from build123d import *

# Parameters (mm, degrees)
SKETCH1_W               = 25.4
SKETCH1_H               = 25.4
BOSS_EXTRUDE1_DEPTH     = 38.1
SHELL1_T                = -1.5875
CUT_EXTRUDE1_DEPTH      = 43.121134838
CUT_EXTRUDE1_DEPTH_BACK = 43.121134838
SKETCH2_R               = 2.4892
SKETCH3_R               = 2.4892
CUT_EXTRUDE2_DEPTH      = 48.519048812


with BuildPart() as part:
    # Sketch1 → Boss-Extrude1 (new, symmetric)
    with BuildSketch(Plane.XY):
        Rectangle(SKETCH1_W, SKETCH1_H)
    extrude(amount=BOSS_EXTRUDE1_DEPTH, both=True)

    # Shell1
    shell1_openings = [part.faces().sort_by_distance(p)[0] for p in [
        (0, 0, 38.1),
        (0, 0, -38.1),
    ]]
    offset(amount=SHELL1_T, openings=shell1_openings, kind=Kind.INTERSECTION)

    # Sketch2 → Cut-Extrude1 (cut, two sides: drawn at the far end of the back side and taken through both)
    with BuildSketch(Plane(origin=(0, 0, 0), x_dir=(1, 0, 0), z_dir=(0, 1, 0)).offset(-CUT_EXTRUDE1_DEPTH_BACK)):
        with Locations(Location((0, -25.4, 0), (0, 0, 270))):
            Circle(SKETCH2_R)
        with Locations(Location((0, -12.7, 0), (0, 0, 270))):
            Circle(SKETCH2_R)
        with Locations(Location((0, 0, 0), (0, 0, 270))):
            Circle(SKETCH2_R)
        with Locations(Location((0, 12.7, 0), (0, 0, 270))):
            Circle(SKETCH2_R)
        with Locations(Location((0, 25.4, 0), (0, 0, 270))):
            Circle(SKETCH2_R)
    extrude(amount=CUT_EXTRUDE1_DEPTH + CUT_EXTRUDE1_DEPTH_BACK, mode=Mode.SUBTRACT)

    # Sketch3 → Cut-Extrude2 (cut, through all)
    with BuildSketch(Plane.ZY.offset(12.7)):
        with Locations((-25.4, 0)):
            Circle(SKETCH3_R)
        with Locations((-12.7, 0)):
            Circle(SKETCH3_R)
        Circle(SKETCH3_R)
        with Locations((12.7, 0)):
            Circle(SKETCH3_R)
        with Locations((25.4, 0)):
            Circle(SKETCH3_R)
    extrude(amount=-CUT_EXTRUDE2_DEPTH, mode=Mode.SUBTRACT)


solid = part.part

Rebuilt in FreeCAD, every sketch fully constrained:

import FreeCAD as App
import Part
import Sketcher
Q = App.Units.Quantity


def faces_at(feature, points):
    """Names of the faces that lie closest to the given points."""
    faces = feature.Shape.Faces
    near = lambda p: min(range(len(faces)), key=lambda i: faces[i].distToShape(Part.Vertex(*p))[0])
    return sorted({f"Face{near(p) + 1}" for p in points})


def add_polygon(sketch, points):
    """Adds a closed chain of lines whose ends are joined by coincident constraints."""
    first, n = sketch.GeometryCount, len(points)
    for a, b in zip(points, points[1:] + points[:1]):
        sketch.addGeometry(Part.LineSegment(App.Vector(*a, 0), App.Vector(*b, 0)), False)
    for i in range(n):
        sketch.addConstraint(Sketcher.Constraint("Coincident", first + i, 2, first + (i + 1) % n, 1))

doc = App.newDocument("Part")
body = doc.addObject("PartDesign::Body", "Body")

# Sketch on XY plane
sketch1 = doc.addObject("Sketcher::SketchObject", "Sketch")
body.addObject(sketch1)
sketch1.AttachmentSupport = (doc.XY_Plane, [""])
sketch1.MapMode = "FlatFace"
add_polygon(sketch1, [(-13, 13), (-13, -13), (13, -13), (13, 13)])  # lines 0-3
sketch1.addConstraint([
    Sketcher.Constraint("Vertical", 0),
    Sketcher.Constraint("Horizontal", 1),
    Sketcher.Constraint("Vertical", 2),
    Sketcher.Constraint("Horizontal", 3),
    Sketcher.Constraint("Symmetric", 0, 2, 2, 2, -1, 1),
    Sketcher.Constraint("Equal", 3, 0),
    Sketcher.Constraint("DistanceX", 1, 1, 1, 2, Q("1 in")),
])
pad1 = doc.addObject("PartDesign::Pad", "Pad")
body.addObject(pad1)
pad1.Profile = sketch1
pad1.Length = Q("3 in")
pad1.Midplane = True
doc.recompute()

thickness = doc.addObject("PartDesign::Thickness", "Thickness")
body.addObject(thickness)
thickness.Base = (pad1, faces_at(pad1, [(0, 0, 38.1), (0, 0, -38.1)]))
thickness.Value = Q("0.0625 in")
thickness.Reversed = True
thickness.Join = "Intersection"

# Sketch on XZ plane
sketch2 = doc.addObject("Sketcher::SketchObject", "Sketch001")
body.addObject(sketch2)
sketch2.AttachmentSupport = (doc.XZ_Plane, [""])
sketch2.MapMode = "FlatFace"
sketch2.addGeometry([
    Part.Circle(App.Vector(0, 25.4, 0), App.Vector(0, 0, 1), 2.5),  # 0
    Part.Circle(App.Vector(0, 12.7, 0), App.Vector(0, 0, 1), 2.5),  # 1
    Part.Circle(App.Vector(0, 0, 0), App.Vector(0, 0, 1), 2.5),  # 2
    Part.Circle(App.Vector(0, -12.7, 0), App.Vector(0, 0, 1), 2.5),  # 3
    Part.Circle(App.Vector(0, -25.4, 0), App.Vector(0, 0, 1), 2.5),  # 4
], False)
sketch2.addConstraint([
    Sketcher.Constraint("Coincident", 2, 3, -1, 1),
    Sketcher.Constraint("Equal", 0, 1),
    Sketcher.Constraint("Equal", 1, 2),
    Sketcher.Constraint("Equal", 2, 3),
    Sketcher.Constraint("Equal", 3, 4),
    Sketcher.Constraint("Symmetric", 1, 3, 3, 3, -1, 1),
    Sketcher.Constraint("Symmetric", 0, 3, 4, 3, -1, 1),
    Sketcher.Constraint("PointOnObject", 0, 3, -2),
    Sketcher.Constraint("PointOnObject", 1, 3, -2),
    Sketcher.Constraint("Diameter", 0, Q("0.196 in")),
    Sketcher.Constraint("DistanceY", -1, 1, 0, 3, Q("1 in")),
    Sketcher.Constraint("DistanceY", 3, 3, 1, 3, Q("1 in")),
])
pocket1 = doc.addObject("PartDesign::Pocket", "Pocket")
body.addObject(pocket1)
pocket1.Profile = sketch2
pocket1.Type = "ThroughAll"
pocket1.Midplane = True

# Sketch on YZ plane
sketch3 = doc.addObject("Sketcher::SketchObject", "Sketch002")
body.addObject(sketch3)
sketch3.AttachmentSupport = (doc.YZ_Plane, [""])
sketch3.MapMode = "FlatFace"
sketch3.AttachmentOffset = App.Placement(App.Vector(0, 0, -0.5 * 25.4), App.Rotation())
sketch3.addGeometry([
    Part.Circle(App.Vector(0, -25.4, 0), App.Vector(0, 0, 1), 2.5),  # 0
    Part.Circle(App.Vector(0, -12.7, 0), App.Vector(0, 0, 1), 2.5),  # 1
    Part.Circle(App.Vector(0, 0, 0), App.Vector(0, 0, 1), 2.5),  # 2
    Part.Circle(App.Vector(0, 12.7, 0), App.Vector(0, 0, 1), 2.5),  # 3
    Part.Circle(App.Vector(0, 25.4, 0), App.Vector(0, 0, 1), 2.5),  # 4
], False)
sketch3.addConstraint([
    Sketcher.Constraint("Coincident", 2, 3, -1, 1),
    Sketcher.Constraint("Equal", 0, 1),
    Sketcher.Constraint("Equal", 1, 2),
    Sketcher.Constraint("Equal", 2, 3),
    Sketcher.Constraint("Equal", 3, 4),
    Sketcher.Constraint("Symmetric", 1, 3, 3, 3, -1, 1),
    Sketcher.Constraint("Symmetric", 0, 3, 4, 3, -1, 1),
    Sketcher.Constraint("PointOnObject", 0, 3, -2),
    Sketcher.Constraint("PointOnObject", 1, 3, -2),
    Sketcher.Constraint("Diameter", 0, Q("0.196 in")),
    Sketcher.Constraint("DistanceY", 0, 3, -1, 1, Q("1 in")),
    Sketcher.Constraint("DistanceY", 1, 3, 3, 3, Q("1 in")),
])
pocket2 = doc.addObject("PartDesign::Pocket", "Pocket001")
body.addObject(pocket2)
pocket2.Profile = sketch3
pocket2.Type = "ThroughAll"
pocket2.Reversed = True

doc.recompute()
